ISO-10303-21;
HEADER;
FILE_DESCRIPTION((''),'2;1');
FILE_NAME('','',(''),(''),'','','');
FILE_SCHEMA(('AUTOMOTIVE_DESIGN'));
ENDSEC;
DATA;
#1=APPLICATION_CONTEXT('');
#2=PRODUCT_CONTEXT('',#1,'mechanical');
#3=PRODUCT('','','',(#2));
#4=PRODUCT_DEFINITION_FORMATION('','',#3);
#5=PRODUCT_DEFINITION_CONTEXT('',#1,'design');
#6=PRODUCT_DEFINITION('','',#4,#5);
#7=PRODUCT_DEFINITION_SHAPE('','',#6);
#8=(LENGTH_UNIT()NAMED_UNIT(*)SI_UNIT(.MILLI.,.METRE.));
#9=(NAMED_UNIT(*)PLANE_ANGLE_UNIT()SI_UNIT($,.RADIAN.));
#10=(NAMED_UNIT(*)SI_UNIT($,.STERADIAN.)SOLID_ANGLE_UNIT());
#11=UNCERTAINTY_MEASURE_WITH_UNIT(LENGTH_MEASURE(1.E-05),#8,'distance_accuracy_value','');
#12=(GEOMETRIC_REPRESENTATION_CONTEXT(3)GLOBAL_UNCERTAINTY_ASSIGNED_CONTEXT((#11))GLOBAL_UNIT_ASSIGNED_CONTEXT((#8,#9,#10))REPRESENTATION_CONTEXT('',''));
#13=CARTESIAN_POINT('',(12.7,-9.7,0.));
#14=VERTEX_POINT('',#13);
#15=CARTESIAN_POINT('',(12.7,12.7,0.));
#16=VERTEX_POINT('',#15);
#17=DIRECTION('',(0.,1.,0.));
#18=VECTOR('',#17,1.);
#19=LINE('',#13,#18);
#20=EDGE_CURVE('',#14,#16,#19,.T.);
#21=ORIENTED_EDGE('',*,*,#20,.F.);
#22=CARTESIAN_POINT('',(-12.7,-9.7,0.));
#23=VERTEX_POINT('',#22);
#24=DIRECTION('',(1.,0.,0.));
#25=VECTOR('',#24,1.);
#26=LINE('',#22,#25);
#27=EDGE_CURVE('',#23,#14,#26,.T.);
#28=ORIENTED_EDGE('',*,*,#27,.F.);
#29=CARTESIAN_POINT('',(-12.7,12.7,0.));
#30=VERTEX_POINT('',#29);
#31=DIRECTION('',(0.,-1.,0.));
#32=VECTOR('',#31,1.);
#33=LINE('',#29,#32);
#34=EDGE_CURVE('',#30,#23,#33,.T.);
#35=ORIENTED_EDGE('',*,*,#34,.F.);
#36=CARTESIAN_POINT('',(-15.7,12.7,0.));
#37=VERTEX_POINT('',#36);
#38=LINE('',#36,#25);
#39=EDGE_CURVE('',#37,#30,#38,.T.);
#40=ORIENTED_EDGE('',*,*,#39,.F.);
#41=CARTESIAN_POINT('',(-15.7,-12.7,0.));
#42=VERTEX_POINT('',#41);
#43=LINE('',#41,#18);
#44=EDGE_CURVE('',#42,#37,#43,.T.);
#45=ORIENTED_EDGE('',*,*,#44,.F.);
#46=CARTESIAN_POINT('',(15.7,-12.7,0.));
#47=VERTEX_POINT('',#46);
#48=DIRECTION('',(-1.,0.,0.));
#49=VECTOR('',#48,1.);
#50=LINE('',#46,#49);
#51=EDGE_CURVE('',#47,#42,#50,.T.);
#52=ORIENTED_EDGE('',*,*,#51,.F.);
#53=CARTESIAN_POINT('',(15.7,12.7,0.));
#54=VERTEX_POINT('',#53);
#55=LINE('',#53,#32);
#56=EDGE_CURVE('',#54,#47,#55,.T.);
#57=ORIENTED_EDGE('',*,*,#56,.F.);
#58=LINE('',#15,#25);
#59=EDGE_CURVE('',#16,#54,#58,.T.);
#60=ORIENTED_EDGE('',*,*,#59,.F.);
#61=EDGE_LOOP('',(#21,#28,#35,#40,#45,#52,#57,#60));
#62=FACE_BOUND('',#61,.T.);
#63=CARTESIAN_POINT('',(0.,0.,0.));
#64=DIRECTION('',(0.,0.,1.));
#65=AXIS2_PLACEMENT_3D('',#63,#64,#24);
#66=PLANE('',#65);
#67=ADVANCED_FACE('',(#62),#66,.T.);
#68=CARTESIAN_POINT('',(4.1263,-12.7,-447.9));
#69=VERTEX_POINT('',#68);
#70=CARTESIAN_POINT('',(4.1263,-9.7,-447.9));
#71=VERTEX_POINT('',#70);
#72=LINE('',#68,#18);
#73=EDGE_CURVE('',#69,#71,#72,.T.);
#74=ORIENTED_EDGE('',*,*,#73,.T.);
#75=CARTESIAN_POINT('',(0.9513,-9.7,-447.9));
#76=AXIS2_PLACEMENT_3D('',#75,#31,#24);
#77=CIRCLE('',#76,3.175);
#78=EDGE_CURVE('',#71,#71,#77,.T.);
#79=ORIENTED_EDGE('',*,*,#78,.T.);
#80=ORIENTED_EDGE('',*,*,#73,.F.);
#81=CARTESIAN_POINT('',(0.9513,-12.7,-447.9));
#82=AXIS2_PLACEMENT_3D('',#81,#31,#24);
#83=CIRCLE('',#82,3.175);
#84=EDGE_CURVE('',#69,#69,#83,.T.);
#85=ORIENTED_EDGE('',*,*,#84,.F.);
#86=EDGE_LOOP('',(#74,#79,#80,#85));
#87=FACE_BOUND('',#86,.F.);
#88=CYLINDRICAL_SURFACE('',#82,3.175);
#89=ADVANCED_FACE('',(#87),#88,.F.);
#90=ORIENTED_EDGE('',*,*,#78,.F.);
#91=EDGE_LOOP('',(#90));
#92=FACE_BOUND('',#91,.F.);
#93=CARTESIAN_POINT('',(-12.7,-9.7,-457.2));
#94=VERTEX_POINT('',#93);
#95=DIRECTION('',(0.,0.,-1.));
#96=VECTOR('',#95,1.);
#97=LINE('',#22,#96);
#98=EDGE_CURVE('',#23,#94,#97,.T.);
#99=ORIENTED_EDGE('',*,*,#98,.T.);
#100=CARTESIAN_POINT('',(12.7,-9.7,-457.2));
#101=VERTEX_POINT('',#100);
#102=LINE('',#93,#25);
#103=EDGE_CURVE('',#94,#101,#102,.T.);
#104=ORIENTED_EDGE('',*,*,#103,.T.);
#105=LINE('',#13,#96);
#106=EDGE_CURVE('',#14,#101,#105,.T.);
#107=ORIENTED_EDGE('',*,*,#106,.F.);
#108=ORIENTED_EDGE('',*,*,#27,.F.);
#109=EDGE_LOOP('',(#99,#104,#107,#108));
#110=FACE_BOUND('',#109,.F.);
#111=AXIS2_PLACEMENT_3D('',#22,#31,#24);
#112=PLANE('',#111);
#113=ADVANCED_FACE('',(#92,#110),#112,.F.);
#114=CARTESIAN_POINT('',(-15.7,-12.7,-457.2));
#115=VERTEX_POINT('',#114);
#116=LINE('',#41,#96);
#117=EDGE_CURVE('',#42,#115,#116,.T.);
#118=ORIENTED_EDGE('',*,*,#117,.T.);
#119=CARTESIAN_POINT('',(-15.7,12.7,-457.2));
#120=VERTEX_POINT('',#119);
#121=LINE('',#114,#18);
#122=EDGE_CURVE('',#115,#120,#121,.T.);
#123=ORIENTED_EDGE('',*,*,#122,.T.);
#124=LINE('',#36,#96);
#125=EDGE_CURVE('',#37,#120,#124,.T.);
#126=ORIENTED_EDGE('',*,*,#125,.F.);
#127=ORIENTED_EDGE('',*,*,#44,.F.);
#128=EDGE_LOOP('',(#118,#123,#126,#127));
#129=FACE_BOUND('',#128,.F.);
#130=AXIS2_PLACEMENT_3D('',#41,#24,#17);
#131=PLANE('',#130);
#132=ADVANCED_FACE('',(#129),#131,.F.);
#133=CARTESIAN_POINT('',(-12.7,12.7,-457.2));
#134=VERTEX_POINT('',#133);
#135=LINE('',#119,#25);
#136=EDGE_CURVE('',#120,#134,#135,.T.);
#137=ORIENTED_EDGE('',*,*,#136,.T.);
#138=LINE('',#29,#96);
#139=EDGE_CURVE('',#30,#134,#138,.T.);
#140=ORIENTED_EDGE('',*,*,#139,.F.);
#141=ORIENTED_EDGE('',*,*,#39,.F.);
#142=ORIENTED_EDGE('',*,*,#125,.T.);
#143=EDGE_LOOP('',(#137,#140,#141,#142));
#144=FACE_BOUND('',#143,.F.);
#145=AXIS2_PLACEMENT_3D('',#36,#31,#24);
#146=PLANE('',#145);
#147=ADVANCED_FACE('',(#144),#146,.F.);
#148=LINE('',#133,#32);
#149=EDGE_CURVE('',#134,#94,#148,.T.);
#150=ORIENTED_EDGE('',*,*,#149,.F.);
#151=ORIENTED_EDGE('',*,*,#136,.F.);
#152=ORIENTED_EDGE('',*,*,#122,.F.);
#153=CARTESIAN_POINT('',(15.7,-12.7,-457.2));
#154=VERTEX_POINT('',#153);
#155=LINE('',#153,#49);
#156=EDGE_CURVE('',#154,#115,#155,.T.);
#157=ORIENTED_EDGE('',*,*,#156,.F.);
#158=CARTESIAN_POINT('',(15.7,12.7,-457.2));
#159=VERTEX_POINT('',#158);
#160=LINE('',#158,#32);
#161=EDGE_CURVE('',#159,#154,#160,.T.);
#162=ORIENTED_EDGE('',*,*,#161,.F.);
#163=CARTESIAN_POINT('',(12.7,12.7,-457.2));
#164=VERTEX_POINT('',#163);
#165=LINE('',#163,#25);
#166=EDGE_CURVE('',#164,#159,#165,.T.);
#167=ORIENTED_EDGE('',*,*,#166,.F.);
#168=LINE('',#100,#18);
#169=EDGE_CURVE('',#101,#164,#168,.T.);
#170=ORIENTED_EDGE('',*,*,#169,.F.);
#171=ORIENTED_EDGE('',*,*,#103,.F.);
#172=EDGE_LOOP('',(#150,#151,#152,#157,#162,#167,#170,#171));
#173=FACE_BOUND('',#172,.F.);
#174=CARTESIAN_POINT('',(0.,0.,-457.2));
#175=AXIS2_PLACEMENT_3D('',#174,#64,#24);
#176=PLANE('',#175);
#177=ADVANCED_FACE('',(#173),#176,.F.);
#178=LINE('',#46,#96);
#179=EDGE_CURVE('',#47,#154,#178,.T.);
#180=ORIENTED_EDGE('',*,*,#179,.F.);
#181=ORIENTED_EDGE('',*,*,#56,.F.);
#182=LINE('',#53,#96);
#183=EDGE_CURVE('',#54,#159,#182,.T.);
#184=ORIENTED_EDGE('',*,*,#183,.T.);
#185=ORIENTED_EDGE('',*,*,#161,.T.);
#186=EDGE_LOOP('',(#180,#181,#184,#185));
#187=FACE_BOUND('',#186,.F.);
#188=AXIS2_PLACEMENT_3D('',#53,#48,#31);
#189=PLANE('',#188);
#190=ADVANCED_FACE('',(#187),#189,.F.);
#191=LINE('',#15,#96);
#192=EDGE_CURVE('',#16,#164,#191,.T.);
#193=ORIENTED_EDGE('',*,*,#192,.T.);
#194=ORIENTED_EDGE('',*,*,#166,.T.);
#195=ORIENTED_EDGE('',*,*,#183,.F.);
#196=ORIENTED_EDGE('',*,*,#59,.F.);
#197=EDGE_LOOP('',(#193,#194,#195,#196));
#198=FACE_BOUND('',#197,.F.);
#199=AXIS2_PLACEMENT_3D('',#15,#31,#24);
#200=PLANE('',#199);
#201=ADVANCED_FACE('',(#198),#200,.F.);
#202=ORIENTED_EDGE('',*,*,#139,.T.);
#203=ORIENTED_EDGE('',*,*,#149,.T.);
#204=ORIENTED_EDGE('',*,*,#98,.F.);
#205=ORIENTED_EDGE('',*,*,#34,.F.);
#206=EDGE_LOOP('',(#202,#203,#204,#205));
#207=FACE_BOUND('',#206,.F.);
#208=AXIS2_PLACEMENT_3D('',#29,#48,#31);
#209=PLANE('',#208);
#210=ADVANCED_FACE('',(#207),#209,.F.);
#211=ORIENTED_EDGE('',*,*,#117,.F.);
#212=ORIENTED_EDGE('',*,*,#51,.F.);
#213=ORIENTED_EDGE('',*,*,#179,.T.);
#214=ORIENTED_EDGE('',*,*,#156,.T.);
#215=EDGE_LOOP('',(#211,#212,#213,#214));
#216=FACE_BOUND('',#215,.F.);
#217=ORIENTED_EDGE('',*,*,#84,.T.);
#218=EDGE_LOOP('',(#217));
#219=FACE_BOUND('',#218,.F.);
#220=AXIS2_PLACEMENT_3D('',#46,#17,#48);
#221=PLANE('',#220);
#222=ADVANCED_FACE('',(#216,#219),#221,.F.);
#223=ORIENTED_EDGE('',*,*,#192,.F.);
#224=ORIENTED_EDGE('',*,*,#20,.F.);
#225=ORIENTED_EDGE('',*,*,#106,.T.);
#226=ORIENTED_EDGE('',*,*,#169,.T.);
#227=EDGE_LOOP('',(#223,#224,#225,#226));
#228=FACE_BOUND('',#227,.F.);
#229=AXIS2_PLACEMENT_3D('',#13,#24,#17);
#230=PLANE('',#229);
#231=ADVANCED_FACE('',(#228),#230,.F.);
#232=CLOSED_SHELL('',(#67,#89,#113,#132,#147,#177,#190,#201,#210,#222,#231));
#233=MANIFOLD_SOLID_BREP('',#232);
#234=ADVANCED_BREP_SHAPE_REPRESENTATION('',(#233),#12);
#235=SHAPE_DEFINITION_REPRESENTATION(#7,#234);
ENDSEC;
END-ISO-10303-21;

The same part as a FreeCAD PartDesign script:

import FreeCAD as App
import Part
import Sketcher
from FreeCAD import Vector
Q = App.Units.Quantity

doc = App.newDocument("Part")
body = doc.addObject("PartDesign::Body", "Body")

sketch1 = body.newObject("Sketcher::SketchObject", "Sketch")
sketch1.AttachmentSupport = (doc.getObject("XY_Plane"), [""])
sketch1.MapMode = "FlatFace"
sketch1.addGeometry([
    Part.LineSegment(Vector(-12.7, 12.7, 0), Vector(-15.7, 12.7, 0)),
    Part.LineSegment(Vector(-15.7, 12.7, 0), Vector(-15.7, -12.7, 0)),
    Part.LineSegment(Vector(-15.7, -12.7, 0), Vector(15.7, -12.7, 0)),
    Part.LineSegment(Vector(15.7, -12.7, 0), Vector(15.7, 12.7, 0)),
    Part.LineSegment(Vector(15.7, 12.7, 0), Vector(12.7, 12.7, 0)),
    Part.LineSegment(Vector(12.7, 12.7, 0), Vector(12.7, -9.7, 0)),
    Part.LineSegment(Vector(12.7, -9.7, 0), Vector(-12.7, -9.7, 0)),
    Part.LineSegment(Vector(-12.7, -9.7, 0), Vector(-12.7, 12.7, 0)),
], False)
sketch1.addConstraint([
    Sketcher.Constraint("Coincident", 0, 2, 1, 1),
    Sketcher.Constraint("Coincident", 1, 2, 2, 1),
    Sketcher.Constraint("Coincident", 2, 2, 3, 1),
    Sketcher.Constraint("Coincident", 3, 2, 4, 1),
    Sketcher.Constraint("Coincident", 4, 2, 5, 1),
    Sketcher.Constraint("Coincident", 5, 2, 6, 1),
    Sketcher.Constraint("Coincident", 6, 2, 7, 1),
    Sketcher.Constraint("Coincident", 7, 2, 0, 1),
    Sketcher.Constraint("Horizontal", 0),
    Sketcher.Constraint("Vertical", 1),
    Sketcher.Constraint("Horizontal", 2),
    Sketcher.Constraint("Vertical", 3),
    Sketcher.Constraint("Horizontal", 4),
    Sketcher.Constraint("Vertical", 5),
    Sketcher.Constraint("Horizontal", 6),
    Sketcher.Constraint("Vertical", 7),
    Sketcher.Constraint("Symmetric", 0, 2, 2, 2, -1, 1),
    Sketcher.Constraint("Symmetric", 4, 2, 7, 2, -2),
    Sketcher.Constraint("Equal", 6, 1),
    Sketcher.Constraint("DistanceX", 6, 2, 6, 1, Q("1 in")),
    Sketcher.Constraint("DistanceX", 0, 2, 0, 1, Q("0.1181 in")),
    Sketcher.Constraint("DistanceY", 2, 2, 5, 2, Q("0.1181 in")),
])
pad1 = body.newObject("PartDesign::Pad", "Pad")
pad1.Profile = sketch1
pad1.Length = Q("18 in")
pad1.Reversed = True

sketch2 = body.newObject("Sketcher::SketchObject", "Sketch001")
sketch2.AttachmentSupport = (doc.getObject("XZ_Plane"), [""])
sketch2.MapMode = "FlatFace"
sketch2.AttachmentOffset = App.Placement(Vector(0, 0, 0.5 * 25.4), App.Rotation())
sketch2.addGeometry(Part.Circle(Vector(1, -447.9, 0), Vector(0, 0, 1), 3.2), False)
sketch2.addConstraint([
    Sketcher.Constraint("Diameter", 0, Q("0.25 in")),
    Sketcher.Constraint("DistanceX", -1, 1, 0, 3, Q("0.9513 mm")),
    Sketcher.Constraint("DistanceY", 0, 3, -1, 1, Q("447.9 mm")),
])
pocket1 = body.newObject("PartDesign::Pocket", "Pocket")
pocket1.Profile = sketch2
pocket1.Length = Q("0.3937008 in")

doc.recompute()
